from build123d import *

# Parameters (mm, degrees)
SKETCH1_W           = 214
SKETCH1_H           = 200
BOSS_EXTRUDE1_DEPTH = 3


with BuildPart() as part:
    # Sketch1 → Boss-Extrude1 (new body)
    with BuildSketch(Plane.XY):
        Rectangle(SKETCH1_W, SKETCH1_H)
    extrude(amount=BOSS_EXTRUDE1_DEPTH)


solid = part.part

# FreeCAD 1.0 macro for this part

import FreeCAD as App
import Part
import Sketcher

V = App.Vector
Q = App.Units.Quantity


def add_polygon(sketch, points):
    """Adds a closed chain of lines whose ends are joined by coincident constraints."""
    first, n = sketch.GeometryCount, len(points)
    for a, b in zip(points, points[1:] + points[:1]):
        sketch.addGeometry(Part.LineSegment(App.Vector(*a, 0), App.Vector(*b, 0)), False)
    for i in range(n):
        sketch.addConstraint(Sketcher.Constraint("Coincident", first + i, 2, first + (i + 1) % n, 1))

doc = App.newDocument("Part")
body = doc.addObject("PartDesign::Body", "Body")

# Sketch on XY plane
sketch1 = doc.addObject("Sketcher::SketchObject", "Sketch")
body.addObject(sketch1)
sketch1.AttachmentSupport = (doc.XY_Plane, [""])
sketch1.MapMode = "FlatFace"
add_polygon(sketch1, [(-107, 100), (-107, -100), (107, -100), (107, 100)])  # lines 0-3
sketch1.addConstraint([
    Sketcher.Constraint("Vertical", 0),
    Sketcher.Constraint("Horizontal", 1),
    Sketcher.Constraint("Vertical", 2),
    Sketcher.Constraint("Horizontal", 3),
    Sketcher.Constraint("Symmetric", 0, 2, 2, 2, -1, 1),
    Sketcher.Constraint("DistanceX", 1, 1, 1, 2, Q("214 mm")),
    Sketcher.Constraint("DistanceY", 0, 2, 0, 1, Q("200 mm")),
])
pad1 = doc.addObject("PartDesign::Pad", "Pad")
body.addObject(pad1)
pad1.Profile = sketch1
pad1.Length = 3

doc.recompute()
